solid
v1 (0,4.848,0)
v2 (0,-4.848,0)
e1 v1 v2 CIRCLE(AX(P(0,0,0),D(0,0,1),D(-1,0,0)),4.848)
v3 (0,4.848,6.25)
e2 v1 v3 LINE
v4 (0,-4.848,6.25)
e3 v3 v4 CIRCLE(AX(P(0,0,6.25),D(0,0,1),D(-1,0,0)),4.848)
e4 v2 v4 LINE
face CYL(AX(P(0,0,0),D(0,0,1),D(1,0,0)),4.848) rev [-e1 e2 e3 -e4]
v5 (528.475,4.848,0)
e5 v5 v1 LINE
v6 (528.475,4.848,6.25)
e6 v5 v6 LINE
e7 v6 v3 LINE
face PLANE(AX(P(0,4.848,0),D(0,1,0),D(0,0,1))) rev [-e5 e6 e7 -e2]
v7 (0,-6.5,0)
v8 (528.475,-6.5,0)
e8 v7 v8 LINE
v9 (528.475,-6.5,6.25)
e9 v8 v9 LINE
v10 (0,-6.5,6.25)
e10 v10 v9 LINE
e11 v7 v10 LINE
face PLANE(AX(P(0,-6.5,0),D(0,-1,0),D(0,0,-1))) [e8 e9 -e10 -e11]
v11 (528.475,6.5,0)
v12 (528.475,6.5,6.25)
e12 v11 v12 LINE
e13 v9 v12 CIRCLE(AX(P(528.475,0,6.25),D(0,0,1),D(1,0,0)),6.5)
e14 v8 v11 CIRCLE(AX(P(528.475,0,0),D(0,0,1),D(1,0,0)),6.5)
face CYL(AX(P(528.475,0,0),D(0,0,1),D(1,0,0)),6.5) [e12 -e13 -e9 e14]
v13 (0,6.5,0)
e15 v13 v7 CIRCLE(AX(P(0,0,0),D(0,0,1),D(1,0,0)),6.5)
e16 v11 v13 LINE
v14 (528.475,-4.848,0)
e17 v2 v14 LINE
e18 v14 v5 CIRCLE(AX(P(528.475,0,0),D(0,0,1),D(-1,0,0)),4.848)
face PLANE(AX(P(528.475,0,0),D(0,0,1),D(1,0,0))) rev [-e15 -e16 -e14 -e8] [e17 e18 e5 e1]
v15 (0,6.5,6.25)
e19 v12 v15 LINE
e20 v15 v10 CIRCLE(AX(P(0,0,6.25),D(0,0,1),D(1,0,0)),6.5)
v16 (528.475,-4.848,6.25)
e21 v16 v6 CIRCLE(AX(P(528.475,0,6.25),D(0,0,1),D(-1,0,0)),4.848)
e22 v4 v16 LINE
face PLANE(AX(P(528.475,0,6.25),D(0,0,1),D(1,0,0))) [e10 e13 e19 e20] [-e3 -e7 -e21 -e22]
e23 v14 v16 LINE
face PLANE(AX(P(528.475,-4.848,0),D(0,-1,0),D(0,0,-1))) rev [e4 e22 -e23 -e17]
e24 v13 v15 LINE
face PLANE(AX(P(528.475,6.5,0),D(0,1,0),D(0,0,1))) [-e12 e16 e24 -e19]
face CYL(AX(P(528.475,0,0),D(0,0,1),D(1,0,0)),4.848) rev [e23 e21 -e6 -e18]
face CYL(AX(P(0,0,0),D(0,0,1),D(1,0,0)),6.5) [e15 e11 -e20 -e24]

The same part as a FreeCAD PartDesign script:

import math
import FreeCAD as App
import Part
import Sketcher
Q = App.Units.Quantity

doc = App.newDocument("Part")
body = doc.addObject("PartDesign::Body", "Body")

sketch1 = body.newObject("Sketcher::SketchObject", "Sketch")
sketch1.AttachmentSupport = (doc.getObject("XY_Plane"), [""])
sketch1.MapMode = "FlatFace"
sketch1.AttachmentOffset = App.Placement(App.Vector(0, 0, 6.25), App.Rotation())
sketch1.addGeometry([
    Part.LineSegment(App.Vector(528.475, 6.5, 0), App.Vector(0, 6.5, 0)),
    Part.ArcOfCircle(Part.Circle(App.Vector(0, 0, 0), App.Vector(0, 0, 1), 6.5), math.radians(90), math.radians(270)),
    Part.LineSegment(App.Vector(0, -6.5, 0), App.Vector(528.475, -6.5, 0)),
    Part.ArcOfCircle(Part.Circle(App.Vector(528.475, 0, 0), App.Vector(0, 0, 1), 6.5), math.radians(-90), math.radians(90)),
    Part.ArcOfCircle(Part.Circle(App.Vector(0, 0, 0), App.Vector(0, 0, 1), 4.848), math.radians(90), math.radians(270)),
    Part.LineSegment(App.Vector(0, 4.848, 0), App.Vector(528.475, 4.848, 0)),
    Part.ArcOfCircle(Part.Circle(App.Vector(528.475, 0, 0), App.Vector(0, 0, 1), 4.848), math.radians(-90), math.radians(90)),
    Part.LineSegment(App.Vector(528.475, -4.848, 0), App.Vector(0, -4.848, 0)),
], False)
sketch1.addConstraint([
    Sketcher.Constraint("Tangent", 0, 2, 1, 1),
    Sketcher.Constraint("Tangent", 1, 2, 2, 1),
    Sketcher.Constraint("Tangent", 2, 2, 3, 1),
    Sketcher.Constraint("Tangent", 3, 2, 0, 1),
    Sketcher.Constraint("Tangent", 4, 1, 5, 1),
    Sketcher.Constraint("Tangent", 5, 2, 6, 2),
    Sketcher.Constraint("Tangent", 6, 1, 7, 1),
    Sketcher.Constraint("Tangent", 7, 2, 4, 2),
    Sketcher.Constraint("Horizontal", 0),
    Sketcher.Constraint("Horizontal", 2),
    Sketcher.Constraint("Horizontal", 5),
    Sketcher.Constraint("Horizontal", 7),
    Sketcher.Constraint("Coincident", 1, 3, -1, 1),
    Sketcher.Constraint("Coincident", 4, 3, -1, 1),
    Sketcher.Constraint("Vertical", 6, 3, 2, 2),
    Sketcher.Constraint("Radius", 1, Q("6.5 mm")),
    Sketcher.Constraint("Radius", 4, Q("4.848 mm")),
    Sketcher.Constraint("DistanceX", 0, 2, 0, 1, Q("528.475 mm")),
])
pad1 = body.newObject("PartDesign::Pad", "Pad")
pad1.Profile = sketch1
pad1.Length = 6.25
pad1.Reversed = True

doc.recompute()
